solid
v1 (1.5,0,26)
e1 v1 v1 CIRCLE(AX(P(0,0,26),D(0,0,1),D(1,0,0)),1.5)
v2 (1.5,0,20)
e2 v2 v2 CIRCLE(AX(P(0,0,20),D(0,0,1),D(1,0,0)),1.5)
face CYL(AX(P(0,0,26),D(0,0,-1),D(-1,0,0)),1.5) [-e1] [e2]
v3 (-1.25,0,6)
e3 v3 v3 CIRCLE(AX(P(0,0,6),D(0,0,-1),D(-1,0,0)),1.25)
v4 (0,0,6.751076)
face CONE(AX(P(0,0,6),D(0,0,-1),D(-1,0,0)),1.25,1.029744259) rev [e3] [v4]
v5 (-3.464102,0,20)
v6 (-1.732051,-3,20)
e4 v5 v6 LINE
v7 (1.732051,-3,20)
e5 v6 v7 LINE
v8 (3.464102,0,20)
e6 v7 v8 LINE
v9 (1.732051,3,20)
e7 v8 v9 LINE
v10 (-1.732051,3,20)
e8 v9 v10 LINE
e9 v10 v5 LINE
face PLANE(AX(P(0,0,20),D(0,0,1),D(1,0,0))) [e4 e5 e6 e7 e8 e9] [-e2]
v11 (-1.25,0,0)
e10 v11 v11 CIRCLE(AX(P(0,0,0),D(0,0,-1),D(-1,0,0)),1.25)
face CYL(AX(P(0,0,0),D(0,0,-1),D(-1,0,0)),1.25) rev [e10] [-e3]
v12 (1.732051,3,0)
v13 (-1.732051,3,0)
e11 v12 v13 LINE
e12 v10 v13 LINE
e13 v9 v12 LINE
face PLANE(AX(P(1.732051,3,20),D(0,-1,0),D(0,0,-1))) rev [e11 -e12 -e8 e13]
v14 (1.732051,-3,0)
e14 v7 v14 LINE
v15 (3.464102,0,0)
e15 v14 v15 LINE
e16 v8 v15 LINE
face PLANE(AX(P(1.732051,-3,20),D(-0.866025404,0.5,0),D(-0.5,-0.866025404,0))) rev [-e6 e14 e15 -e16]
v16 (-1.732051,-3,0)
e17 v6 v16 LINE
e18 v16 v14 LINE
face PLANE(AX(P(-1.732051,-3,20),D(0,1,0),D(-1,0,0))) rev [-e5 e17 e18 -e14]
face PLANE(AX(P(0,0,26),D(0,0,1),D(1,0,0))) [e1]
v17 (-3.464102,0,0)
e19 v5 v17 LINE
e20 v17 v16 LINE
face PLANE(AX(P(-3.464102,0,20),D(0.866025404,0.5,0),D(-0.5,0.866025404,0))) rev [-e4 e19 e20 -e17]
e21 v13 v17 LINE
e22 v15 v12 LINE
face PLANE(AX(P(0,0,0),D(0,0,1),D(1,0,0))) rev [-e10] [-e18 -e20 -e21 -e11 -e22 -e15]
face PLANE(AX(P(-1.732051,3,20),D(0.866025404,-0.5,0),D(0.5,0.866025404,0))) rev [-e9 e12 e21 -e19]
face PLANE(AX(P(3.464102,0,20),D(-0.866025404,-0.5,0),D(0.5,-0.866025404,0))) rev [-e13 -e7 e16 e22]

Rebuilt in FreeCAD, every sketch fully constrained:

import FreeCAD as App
import Part
import Sketcher

V = App.Vector
Q = App.Units.Quantity

doc = App.newDocument("Part")
body = doc.addObject("PartDesign::Body", "Body")

# Sketch on XY plane
sketch1 = body.newObject("Sketcher::SketchObject", "Sketch")
sketch1.AttachmentSupport = (doc.getObject("XY_Plane"), [""])
sketch1.MapMode = "FlatFace"
sketch1.addGeometry(Part.LineSegment(V(-3.5, 0, 0), V(-1.7, -3, 0)), False)
sketch1.addGeometry(Part.LineSegment(V(-1.7, -3, 0), V(1.7, -3, 0)), False)
sketch1.addGeometry(Part.LineSegment(V(1.7, -3, 0), V(3.5, 0, 0)), False)
sketch1.addGeometry(Part.LineSegment(V(3.5, 0, 0), V(1.7, 3, 0)), False)
sketch1.addGeometry(Part.LineSegment(V(1.7, 3, 0), V(-1.7, 3, 0)), False)
sketch1.addGeometry(Part.LineSegment(V(-1.7, 3, 0), V(-3.5, 0, 0)), False)
sketch1.addConstraint(Sketcher.Constraint("Coincident", 0, 2, 1, 1))
sketch1.addConstraint(Sketcher.Constraint("Coincident", 1, 2, 2, 1))
sketch1.addConstraint(Sketcher.Constraint("Coincident", 2, 2, 3, 1))
sketch1.addConstraint(Sketcher.Constraint("Coincident", 3, 2, 4, 1))
sketch1.addConstraint(Sketcher.Constraint("Coincident", 4, 2, 5, 1))
sketch1.addConstraint(Sketcher.Constraint("Coincident", 5, 2, 0, 1))
sketch1.addConstraint(Sketcher.Constraint("Horizontal", 1))
sketch1.addConstraint(Sketcher.Constraint("Horizontal", 4))
sketch1.addConstraint(Sketcher.Constraint("Symmetric", 0, 2, 3, 2, -1, 1))
sketch1.addConstraint(Sketcher.Constraint("Symmetric", 2, 2, 5, 2, -1, 1))
sketch1.addConstraint(Sketcher.Constraint("PointOnObject", 2, 2, -1))
sketch1.addConstraint(Sketcher.Constraint("Parallel", 2, 5))
sketch1.addConstraint(Sketcher.Constraint("Vertical", 1, 2, 3, 2))
sketch1.addConstraint(Sketcher.Constraint("Angle", 0, Q("-60 deg")))
sketch1.addConstraint(Sketcher.Constraint("DistanceY", 0, 2, -1, 1, 3.0))
sketch1.addConstraint(Sketcher.Constraint("DistanceX", 1, 1, 1, 2, 3.464102))
pad1 = body.newObject("PartDesign::Pad", "Pad")
pad1.Profile = sketch1
pad1.Length = 20

# Sketch on XY plane
sketch2 = body.newObject("Sketcher::SketchObject", "Sketch001")
sketch2.AttachmentSupport = (doc.getObject("XY_Plane"), [""])
sketch2.MapMode = "FlatFace"
sketch2.AttachmentOffset = App.Placement(V(0, 0, 20), App.Rotation())
sketch2.addGeometry(Part.Circle(V(0, 0, 0), V(0, 0, 1), 1.5), False)
sketch2.addConstraint(Sketcher.Constraint("Coincident", 0, 3, -1, 1))
sketch2.addConstraint(Sketcher.Constraint("Diameter", 0, 3.0))
pad2 = body.newObject("PartDesign::Pad", "Pad001")
pad2.Profile = sketch2
pad2.Length = 6

# Sketch on XY plane
sketch3 = body.newObject("Sketcher::SketchObject", "Sketch002")
sketch3.AttachmentSupport = (doc.getObject("XY_Plane"), [""])
sketch3.MapMode = "FlatFace"
sketch3.addGeometry(Part.Circle(V(0, 0, 0), V(0, 0, 1), 1.2), False)
sketch3.addConstraint(Sketcher.Constraint("Coincident", 0, 3, -1, 1))
sketch3.addConstraint(Sketcher.Constraint("Diameter", 0, 2.5))
doc.recompute()
hole = body.newObject("PartDesign::Hole", "Hole")
hole.Profile = sketch3
hole.ThreadType = "None"
hole.Diameter = 2.5
hole.DepthType = "Dimension"
hole.Depth = 6
hole.DrillPoint = "Angled"
hole.DrillPointAngle = 118
hole.Reversed = True

doc.recompute()
